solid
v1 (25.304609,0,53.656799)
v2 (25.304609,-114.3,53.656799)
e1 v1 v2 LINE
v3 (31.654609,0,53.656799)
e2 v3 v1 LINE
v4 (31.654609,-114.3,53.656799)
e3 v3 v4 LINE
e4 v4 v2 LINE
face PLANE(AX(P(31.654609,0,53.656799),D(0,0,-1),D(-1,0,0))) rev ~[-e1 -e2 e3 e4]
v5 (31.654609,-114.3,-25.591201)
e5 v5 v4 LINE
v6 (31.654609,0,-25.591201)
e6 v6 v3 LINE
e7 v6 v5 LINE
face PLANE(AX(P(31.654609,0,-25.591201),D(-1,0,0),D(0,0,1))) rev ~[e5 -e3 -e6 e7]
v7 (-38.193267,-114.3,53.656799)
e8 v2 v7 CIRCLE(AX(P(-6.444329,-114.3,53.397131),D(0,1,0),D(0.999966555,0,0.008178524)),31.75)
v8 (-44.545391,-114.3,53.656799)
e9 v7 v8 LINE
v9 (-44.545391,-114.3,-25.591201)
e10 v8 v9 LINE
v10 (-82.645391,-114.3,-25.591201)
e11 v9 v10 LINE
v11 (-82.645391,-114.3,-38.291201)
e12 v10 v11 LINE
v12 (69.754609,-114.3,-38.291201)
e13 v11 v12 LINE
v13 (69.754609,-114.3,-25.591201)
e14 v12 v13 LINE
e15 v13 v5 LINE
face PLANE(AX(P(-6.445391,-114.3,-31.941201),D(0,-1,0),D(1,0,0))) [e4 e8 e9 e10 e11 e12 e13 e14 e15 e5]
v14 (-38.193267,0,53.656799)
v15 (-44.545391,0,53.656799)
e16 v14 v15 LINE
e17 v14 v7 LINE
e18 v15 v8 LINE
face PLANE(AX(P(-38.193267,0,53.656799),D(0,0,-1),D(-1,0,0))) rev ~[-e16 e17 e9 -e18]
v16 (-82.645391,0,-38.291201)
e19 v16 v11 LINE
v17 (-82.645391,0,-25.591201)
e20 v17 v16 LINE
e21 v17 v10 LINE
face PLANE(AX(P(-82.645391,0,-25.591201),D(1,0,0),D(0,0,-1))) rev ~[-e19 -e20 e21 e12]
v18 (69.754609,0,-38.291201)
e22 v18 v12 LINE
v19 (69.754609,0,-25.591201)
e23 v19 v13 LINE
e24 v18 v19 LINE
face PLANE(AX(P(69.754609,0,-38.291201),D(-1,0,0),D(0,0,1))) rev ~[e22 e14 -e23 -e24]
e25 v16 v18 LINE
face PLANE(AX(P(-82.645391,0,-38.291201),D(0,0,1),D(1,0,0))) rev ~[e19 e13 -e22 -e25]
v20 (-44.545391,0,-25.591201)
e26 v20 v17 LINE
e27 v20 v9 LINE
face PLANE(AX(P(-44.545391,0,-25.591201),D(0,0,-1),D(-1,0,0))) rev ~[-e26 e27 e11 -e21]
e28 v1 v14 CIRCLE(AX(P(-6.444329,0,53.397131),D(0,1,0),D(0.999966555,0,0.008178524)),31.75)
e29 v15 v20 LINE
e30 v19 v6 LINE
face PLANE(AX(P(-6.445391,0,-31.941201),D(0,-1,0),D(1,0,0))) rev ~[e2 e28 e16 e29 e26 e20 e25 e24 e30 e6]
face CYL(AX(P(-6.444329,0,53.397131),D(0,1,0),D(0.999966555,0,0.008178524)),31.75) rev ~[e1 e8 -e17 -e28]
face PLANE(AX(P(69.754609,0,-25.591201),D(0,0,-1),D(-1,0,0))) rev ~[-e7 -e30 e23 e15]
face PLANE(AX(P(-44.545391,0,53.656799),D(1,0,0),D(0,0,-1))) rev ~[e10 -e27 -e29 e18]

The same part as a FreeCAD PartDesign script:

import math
import FreeCAD as App
import Part
import Sketcher
Q = App.Units.Quantity

doc = App.newDocument("Part")
body = doc.addObject("PartDesign::Body", "Body")

# Sketch on XZ plane
sketch1 = body.newObject("Sketcher::SketchObject", "Sketch")
sketch1.AttachmentSupport = (doc.getObject("XZ_Plane"), [""])
sketch1.MapMode = "FlatFace"
sketch1.addGeometry(Part.LineSegment(App.Vector(-83, -26, 0), App.Vector(-83, -38, 0)), False)
sketch1.addGeometry(Part.LineSegment(App.Vector(-83, -38, 0), App.Vector(70, -38, 0)), False)
sketch1.addGeometry(Part.LineSegment(App.Vector(70, -38, 0), App.Vector(70, -26, 0)), False)
sketch1.addGeometry(Part.LineSegment(App.Vector(70, -26, 0), App.Vector(32, -26, 0)), False)
sketch1.addGeometry(Part.LineSegment(App.Vector(32, -26, 0), App.Vector(32, 54, 0)), False)
sketch1.addGeometry(Part.LineSegment(App.Vector(32, 54, 0), App.Vector(25, 54, 0)), False)
sketch1.addGeometry(Part.ArcOfCircle(Part.Circle(App.Vector(-6, 53, 0), App.Vector(0, 0, 1), 32), math.radians(180), math.radians(360)), False)
sketch1.addGeometry(Part.LineSegment(App.Vector(-38, 54, 0), App.Vector(-45, 54, 0)), False)
sketch1.addGeometry(Part.LineSegment(App.Vector(-45, 54, 0), App.Vector(-45, -26, 0)), False)
sketch1.addGeometry(Part.LineSegment(App.Vector(-45, -26, 0), App.Vector(-83, -26, 0)), False)
sketch1.addConstraint(Sketcher.Constraint("Coincident", 0, 2, 1, 1))
sketch1.addConstraint(Sketcher.Constraint("Coincident", 1, 2, 2, 1))
sketch1.addConstraint(Sketcher.Constraint("Coincident", 2, 2, 3, 1))
sketch1.addConstraint(Sketcher.Constraint("Coincident", 3, 2, 4, 1))
sketch1.addConstraint(Sketcher.Constraint("Coincident", 4, 2, 5, 1))
sketch1.addConstraint(Sketcher.Constraint("Coincident", 5, 2, 6, 2))
sketch1.addConstraint(Sketcher.Constraint("Coincident", 6, 1, 7, 1))
sketch1.addConstraint(Sketcher.Constraint("Coincident", 7, 2, 8, 1))
sketch1.addConstraint(Sketcher.Constraint("Coincident", 8, 2, 9, 1))
sketch1.addConstraint(Sketcher.Constraint("Coincident", 9, 2, 0, 1))
sketch1.addConstraint(Sketcher.Constraint("Vertical", 0))
sketch1.addConstraint(Sketcher.Constraint("Horizontal", 1))
sketch1.addConstraint(Sketcher.Constraint("Vertical", 2))
sketch1.addConstraint(Sketcher.Constraint("Horizontal", 3))
sketch1.addConstraint(Sketcher.Constraint("Vertical", 4))
sketch1.addConstraint(Sketcher.Constraint("Horizontal", 5))
sketch1.addConstraint(Sketcher.Constraint("Horizontal", 7))
sketch1.addConstraint(Sketcher.Constraint("Vertical", 8))
sketch1.addConstraint(Sketcher.Constraint("Horizontal", 9))
sketch1.addConstraint(Sketcher.Constraint("Horizontal", 5, 2, 6, 1))
sketch1.addConstraint(Sketcher.Constraint("Horizontal", 3, 2, 8, 2))
sketch1.addConstraint(Sketcher.Constraint("Equal", 3, 9))
sketch1.addConstraint(Sketcher.Constraint("DistanceX", 1, 1, 1, 2, Q("6 in")))
sketch1.addConstraint(Sketcher.Constraint("Radius", 6, Q("1.25 in")))
sketch1.addConstraint(Sketcher.Constraint("DistanceX", 3, 2, 3, 1, Q("1.5 in")))
sketch1.addConstraint(Sketcher.Constraint("DistanceY", 0, 2, 0, 1, Q("0.5 in")))
sketch1.addConstraint(Sketcher.Constraint("DistanceX", 5, 2, 5, 1, Q("0.25 in")))
sketch1.addConstraint(Sketcher.Constraint("DistanceY", 4, 1, 4, 2, Q("3.12 in")))
sketch1.addConstraint(Sketcher.Constraint("DistanceY", 0, 2, -1, 1, 38.291201))
sketch1.addConstraint(Sketcher.Constraint("DistanceX", 7, 2, 7, 1, 6.352124))
sketch1.addConstraint(Sketcher.Constraint("DistanceX", 6, 3, -1, 1, 6.444329))
pad1 = body.newObject("PartDesign::Pad", "Pad")
pad1.Profile = sketch1
pad1.Length = Q("4.5 in")

doc.recompute()
